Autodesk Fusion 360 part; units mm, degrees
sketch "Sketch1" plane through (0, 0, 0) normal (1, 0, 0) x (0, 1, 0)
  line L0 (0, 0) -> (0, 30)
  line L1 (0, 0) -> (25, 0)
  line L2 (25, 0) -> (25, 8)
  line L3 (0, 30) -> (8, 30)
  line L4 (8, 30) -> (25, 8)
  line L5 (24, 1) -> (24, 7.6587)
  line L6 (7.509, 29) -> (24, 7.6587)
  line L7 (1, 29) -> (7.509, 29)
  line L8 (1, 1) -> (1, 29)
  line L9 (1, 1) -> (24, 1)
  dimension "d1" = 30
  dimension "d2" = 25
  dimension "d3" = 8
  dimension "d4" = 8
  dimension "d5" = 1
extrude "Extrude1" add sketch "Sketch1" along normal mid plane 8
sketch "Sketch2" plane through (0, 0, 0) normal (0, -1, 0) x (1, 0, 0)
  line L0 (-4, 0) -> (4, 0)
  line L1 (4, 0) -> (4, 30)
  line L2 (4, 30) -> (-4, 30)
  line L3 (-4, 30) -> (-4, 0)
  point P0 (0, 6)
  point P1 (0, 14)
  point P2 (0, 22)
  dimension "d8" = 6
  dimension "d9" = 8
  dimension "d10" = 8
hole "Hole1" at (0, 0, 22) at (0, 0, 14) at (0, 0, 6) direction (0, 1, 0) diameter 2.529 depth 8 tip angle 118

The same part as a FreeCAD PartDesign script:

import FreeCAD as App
import Part
import Sketcher

V = App.Vector


def add_polygon(sketch, points):
    """Adds a closed chain of lines whose ends are joined by coincident constraints."""
    first, n = sketch.GeometryCount, len(points)
    for a, b in zip(points, points[1:] + points[:1]):
        sketch.addGeometry(Part.LineSegment(App.Vector(*a, 0), App.Vector(*b, 0)), False)
    for i in range(n):
        sketch.addConstraint(Sketcher.Constraint("Coincident", first + i, 2, first + (i + 1) % n, 1))

doc = App.newDocument("Part")
params = doc.addObject("Spreadsheet::Sheet", "Params")
for row, (alias, value) in enumerate([
    ("sketch1_width", "25 mm"),
    ("sketch1_width2", "8 mm"),
    ("sketch1_height", "30 mm"),
    ("pad1_length", "8 mm"),
    ("hole_diameter", "2.529 mm"),
    ("hole_depth", "8 mm"),
], start=1):
    params.set(f"A{row}", alias)
    params.set(f"B{row}", "=" + value)
    params.setAlias(f"B{row}", alias)

body = doc.addObject("PartDesign::Body", "Body")

sketch1 = body.newObject("Sketcher::SketchObject", "Sketch")
sketch1.AttachmentSupport = (doc.getObject("YZ_Plane"), [""])
sketch1.MapMode = "FlatFace"
add_polygon(sketch1, [(0, 30), (0, 0), (25, 0), (25, 8), (8, 30)])
add_polygon(sketch1, [(24, 7.6587), (24, 1), (1, 1), (1, 29), (7.509, 29)])
sketch1.addConstraint([
    Sketcher.Constraint("Vertical", 0),
    Sketcher.Constraint("Horizontal", 1),
    Sketcher.Constraint("Vertical", 2),
    Sketcher.Constraint("Horizontal", 4),
    Sketcher.Constraint("Vertical", 5),
    Sketcher.Constraint("Horizontal", 6),
    Sketcher.Constraint("Vertical", 7),
    Sketcher.Constraint("Horizontal", 8),
    Sketcher.Constraint("Coincident", 0, 2, -1, 1),
    Sketcher.Constraint("Parallel", 3, 9),
    Sketcher.Constraint("Equal", 4, 2),
    Sketcher.Constraint("DistanceX", 1, 1, 1, 2, 25.0),
    Sketcher.Constraint("DistanceX", 4, 2, 4, 1, 8.0),
    Sketcher.Constraint("DistanceY", 0, 2, 0, 1, 30.0),
    Sketcher.Constraint("DistanceY", -1, 1, 5, 2, 1.0),
    Sketcher.Constraint("DistanceX", -1, 1, 6, 2, 1.0),
    Sketcher.Constraint("DistanceX", 5, 2, 1, 2, 1.0),
    Sketcher.Constraint("DistanceY", 7, 2, 4, 2, 1.0),
    Sketcher.Constraint("DistanceX", 8, 1, 8, 2, 6.509),
])
sketch1.setExpression("Constraints[21]", "Params.sketch1_width")
sketch1.setExpression("Constraints[22]", "Params.sketch1_width2")
sketch1.setExpression("Constraints[23]", "Params.sketch1_height")
pad1 = body.newObject("PartDesign::Pad", "Pad")
pad1.Profile = sketch1
pad1.setExpression("Length", "Params.pad1_length")
pad1.Midplane = True

sketch2 = body.newObject("Sketcher::SketchObject", "Sketch001")
sketch2.AttachmentSupport = (doc.getObject("XZ_Plane"), [""])
sketch2.MapMode = "FlatFace"
sketch2.addGeometry([
    Part.Circle(V(0, 22, 0), V(0, 0, 1), 1.2645),
    Part.Circle(V(0, 14, 0), V(0, 0, 1), 1.2645),
    Part.Circle(V(0, 6, 0), V(0, 0, 1), 1.2645),
], False)
sketch2.addConstraint([
    Sketcher.Constraint("Equal", 0, 1),
    Sketcher.Constraint("Equal", 1, 2),
    Sketcher.Constraint("PointOnObject", 0, 3, -2),
    Sketcher.Constraint("PointOnObject", 1, 3, -2),
    Sketcher.Constraint("PointOnObject", 2, 3, -2),
    Sketcher.Constraint("Diameter", 0, 2.529),
    Sketcher.Constraint("DistanceY", -1, 1, 0, 3, 22.0),
    Sketcher.Constraint("DistanceY", -1, 1, 1, 3, 14.0),
    Sketcher.Constraint("DistanceY", -1, 1, 2, 3, 6.0),
])
doc.recompute()
hole = body.newObject("PartDesign::Hole", "Hole")
hole.Profile = sketch2
hole.ThreadType = "None"
hole.setExpression("Diameter", "Params.hole_diameter")
hole.DepthType = "Dimension"
hole.setExpression("Depth", "Params.hole_depth")
hole.DrillPoint = "Angled"
hole.DrillPointAngle = 118

doc.recompute()
